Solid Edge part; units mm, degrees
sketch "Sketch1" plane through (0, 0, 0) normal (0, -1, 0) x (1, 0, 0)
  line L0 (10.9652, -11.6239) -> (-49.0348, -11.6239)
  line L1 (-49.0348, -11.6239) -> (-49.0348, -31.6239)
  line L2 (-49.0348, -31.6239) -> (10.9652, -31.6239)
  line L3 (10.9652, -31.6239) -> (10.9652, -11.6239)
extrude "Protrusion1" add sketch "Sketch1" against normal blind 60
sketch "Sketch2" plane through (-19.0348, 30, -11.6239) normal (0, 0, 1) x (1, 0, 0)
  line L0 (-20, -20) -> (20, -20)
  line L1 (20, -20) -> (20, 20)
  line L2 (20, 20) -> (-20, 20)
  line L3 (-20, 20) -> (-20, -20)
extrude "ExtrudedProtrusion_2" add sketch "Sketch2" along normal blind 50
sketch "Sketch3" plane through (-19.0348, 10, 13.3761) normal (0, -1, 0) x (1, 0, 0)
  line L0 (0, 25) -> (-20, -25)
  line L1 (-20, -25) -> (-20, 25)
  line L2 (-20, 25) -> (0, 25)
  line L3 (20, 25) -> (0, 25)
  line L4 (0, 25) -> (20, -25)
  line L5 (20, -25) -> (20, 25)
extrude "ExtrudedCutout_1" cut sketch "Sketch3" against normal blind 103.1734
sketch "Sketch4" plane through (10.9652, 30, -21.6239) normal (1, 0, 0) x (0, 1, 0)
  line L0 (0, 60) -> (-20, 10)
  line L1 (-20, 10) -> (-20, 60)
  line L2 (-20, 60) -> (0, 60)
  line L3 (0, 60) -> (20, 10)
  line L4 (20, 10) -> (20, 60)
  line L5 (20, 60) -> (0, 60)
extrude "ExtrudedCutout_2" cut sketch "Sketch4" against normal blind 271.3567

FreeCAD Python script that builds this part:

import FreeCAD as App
import Part
import Sketcher
from FreeCAD import Vector
Q = App.Units.Quantity


def add_polygon(sketch, points):
    """Adds a closed chain of lines whose ends are joined by coincident constraints."""
    first, n = sketch.GeometryCount, len(points)
    for a, b in zip(points, points[1:] + points[:1]):
        sketch.addGeometry(Part.LineSegment(App.Vector(*a, 0), App.Vector(*b, 0)), False)
    for i in range(n):
        sketch.addConstraint(Sketcher.Constraint("Coincident", first + i, 2, first + (i + 1) % n, 1))

doc = App.newDocument("Part")
body = doc.addObject("PartDesign::Body", "Body")

# Sketch on XZ plane
sketch1 = doc.addObject("Sketcher::SketchObject", "Sketch")
body.addObject(sketch1)
sketch1.AttachmentSupport = (doc.XZ_Plane, [""])
sketch1.MapMode = "FlatFace"
add_polygon(sketch1, [(10.9652, -31.6239), (10.9652, -11.6239), (-49.0348, -11.6239), (-49.0348, -31.6239)])  # lines 0-3
sketch1.addConstraint([
    Sketcher.Constraint("Vertical", 0),
    Sketcher.Constraint("Horizontal", 1),
    Sketcher.Constraint("Vertical", 2),
    Sketcher.Constraint("Horizontal", 3),
    Sketcher.Constraint("DistanceX", 1, 2, 1, 1, Q("60 mm")),
    Sketcher.Constraint("DistanceY", 0, 1, 0, 2, Q("20 mm")),
    Sketcher.Constraint("DistanceY", 0, 2, -1, 1, Q("11.624 mm")),
    Sketcher.Constraint("DistanceX", -1, 1, 0, 2, Q("10.9652 mm")),
])
pad1 = doc.addObject("PartDesign::Pad", "Pad")
body.addObject(pad1)
pad1.Profile = sketch1
pad1.Length = 60
pad1.Reversed = True

# Sketch on XY plane
sketch2 = doc.addObject("Sketcher::SketchObject", "Sketch001")
body.addObject(sketch2)
sketch2.AttachmentSupport = (doc.XY_Plane, [""])
sketch2.MapMode = "FlatFace"
sketch2.AttachmentOffset = App.Placement(Vector(0, 0, -11.6239), App.Rotation())
add_polygon(sketch2, [(-39.0348, 50), (-39.0348, 10), (0.9652, 10), (0.9652, 50)])  # lines 0-3
sketch2.addConstraint([
    Sketcher.Constraint("Vertical", 0),
    Sketcher.Constraint("Horizontal", 1),
    Sketcher.Constraint("Vertical", 2),
    Sketcher.Constraint("Horizontal", 3),
    Sketcher.Constraint("Equal", 3, 0),
    Sketcher.Constraint("DistanceX", 1, 1, 1, 2, Q("40 mm")),
    Sketcher.Constraint("DistanceY", -1, 1, 0, 2, Q("10 mm")),
    Sketcher.Constraint("DistanceX", 0, 2, -1, 1, Q("39.0348 mm")),
])
pad2 = doc.addObject("PartDesign::Pad", "Pad001")
body.addObject(pad2)
pad2.Profile = sketch2
pad2.Length = 50

# Sketch on XZ plane
sketch3 = doc.addObject("Sketcher::SketchObject", "Sketch002")
body.addObject(sketch3)
sketch3.AttachmentSupport = (doc.XZ_Plane, [""])
sketch3.MapMode = "FlatFace"
sketch3.AttachmentOffset = App.Placement(Vector(0, 0, -10), App.Rotation())
add_polygon(sketch3, [(-39.0348, -11.6239), (-19.0348, 38.3761), (-39.0348, 38.3761)])  # lines 0-2
add_polygon(sketch3, [(0.9652, 38.3761), (-19.0348, 38.3761), (0.9652, -11.6239)])  # lines 3-5
sketch3.addConstraint([
    Sketcher.Constraint("Horizontal", 1),
    Sketcher.Constraint("Vertical", 2),
    Sketcher.Constraint("Horizontal", 3),
    Sketcher.Constraint("Vertical", 5),
    Sketcher.Constraint("Coincident", 3, 2, 0, 2),
    Sketcher.Constraint("Horizontal", 2, 2, 4, 2),
    Sketcher.Constraint("Equal", 1, 3),
    Sketcher.Constraint("DistanceX", 1, 2, 1, 1, Q("20 mm")),
    Sketcher.Constraint("DistanceY", 2, 2, 2, 1, Q("50 mm")),
    Sketcher.Constraint("DistanceY", -1, 1, 0, 2, Q("38.376 mm")),
    Sketcher.Constraint("DistanceX", 0, 2, -1, 1, Q("19.0348 mm")),
])
pocket1 = doc.addObject("PartDesign::Pocket", "Pocket")
body.addObject(pocket1)
pocket1.Profile = sketch3
pocket1.Length = 103.1734

# Sketch on YZ plane
sketch4 = doc.addObject("Sketcher::SketchObject", "Sketch003")
body.addObject(sketch4)
sketch4.AttachmentSupport = (doc.YZ_Plane, [""])
sketch4.MapMode = "FlatFace"
sketch4.AttachmentOffset = App.Placement(Vector(0, 0, 10.9652), App.Rotation())
add_polygon(sketch4, [(10, -11.6239), (30, 38.3761), (10, 38.3761)])  # lines 0-2
add_polygon(sketch4, [(50, 38.3761), (30, 38.3761), (50, -11.6239)])  # lines 3-5
sketch4.addConstraint([
    Sketcher.Constraint("Horizontal", 1),
    Sketcher.Constraint("Vertical", 2),
    Sketcher.Constraint("Horizontal", 3),
    Sketcher.Constraint("Vertical", 5),
    Sketcher.Constraint("Coincident", 3, 2, 0, 2),
    Sketcher.Constraint("Horizontal", 2, 2, 4, 2),
    Sketcher.Constraint("Equal", 1, 3),
    Sketcher.Constraint("DistanceX", 1, 2, 1, 1, Q("20 mm")),
    Sketcher.Constraint("DistanceY", 2, 2, 2, 1, Q("50 mm")),
    Sketcher.Constraint("DistanceX", -1, 1, 0, 2, Q("30 mm")),
    Sketcher.Constraint("DistanceY", -1, 1, 0, 2, Q("38.376 mm")),
])
pocket2 = doc.addObject("PartDesign::Pocket", "Pocket001")
body.addObject(pocket2)
pocket2.Profile = sketch4
pocket2.Length = 271.3567

doc.recompute()
